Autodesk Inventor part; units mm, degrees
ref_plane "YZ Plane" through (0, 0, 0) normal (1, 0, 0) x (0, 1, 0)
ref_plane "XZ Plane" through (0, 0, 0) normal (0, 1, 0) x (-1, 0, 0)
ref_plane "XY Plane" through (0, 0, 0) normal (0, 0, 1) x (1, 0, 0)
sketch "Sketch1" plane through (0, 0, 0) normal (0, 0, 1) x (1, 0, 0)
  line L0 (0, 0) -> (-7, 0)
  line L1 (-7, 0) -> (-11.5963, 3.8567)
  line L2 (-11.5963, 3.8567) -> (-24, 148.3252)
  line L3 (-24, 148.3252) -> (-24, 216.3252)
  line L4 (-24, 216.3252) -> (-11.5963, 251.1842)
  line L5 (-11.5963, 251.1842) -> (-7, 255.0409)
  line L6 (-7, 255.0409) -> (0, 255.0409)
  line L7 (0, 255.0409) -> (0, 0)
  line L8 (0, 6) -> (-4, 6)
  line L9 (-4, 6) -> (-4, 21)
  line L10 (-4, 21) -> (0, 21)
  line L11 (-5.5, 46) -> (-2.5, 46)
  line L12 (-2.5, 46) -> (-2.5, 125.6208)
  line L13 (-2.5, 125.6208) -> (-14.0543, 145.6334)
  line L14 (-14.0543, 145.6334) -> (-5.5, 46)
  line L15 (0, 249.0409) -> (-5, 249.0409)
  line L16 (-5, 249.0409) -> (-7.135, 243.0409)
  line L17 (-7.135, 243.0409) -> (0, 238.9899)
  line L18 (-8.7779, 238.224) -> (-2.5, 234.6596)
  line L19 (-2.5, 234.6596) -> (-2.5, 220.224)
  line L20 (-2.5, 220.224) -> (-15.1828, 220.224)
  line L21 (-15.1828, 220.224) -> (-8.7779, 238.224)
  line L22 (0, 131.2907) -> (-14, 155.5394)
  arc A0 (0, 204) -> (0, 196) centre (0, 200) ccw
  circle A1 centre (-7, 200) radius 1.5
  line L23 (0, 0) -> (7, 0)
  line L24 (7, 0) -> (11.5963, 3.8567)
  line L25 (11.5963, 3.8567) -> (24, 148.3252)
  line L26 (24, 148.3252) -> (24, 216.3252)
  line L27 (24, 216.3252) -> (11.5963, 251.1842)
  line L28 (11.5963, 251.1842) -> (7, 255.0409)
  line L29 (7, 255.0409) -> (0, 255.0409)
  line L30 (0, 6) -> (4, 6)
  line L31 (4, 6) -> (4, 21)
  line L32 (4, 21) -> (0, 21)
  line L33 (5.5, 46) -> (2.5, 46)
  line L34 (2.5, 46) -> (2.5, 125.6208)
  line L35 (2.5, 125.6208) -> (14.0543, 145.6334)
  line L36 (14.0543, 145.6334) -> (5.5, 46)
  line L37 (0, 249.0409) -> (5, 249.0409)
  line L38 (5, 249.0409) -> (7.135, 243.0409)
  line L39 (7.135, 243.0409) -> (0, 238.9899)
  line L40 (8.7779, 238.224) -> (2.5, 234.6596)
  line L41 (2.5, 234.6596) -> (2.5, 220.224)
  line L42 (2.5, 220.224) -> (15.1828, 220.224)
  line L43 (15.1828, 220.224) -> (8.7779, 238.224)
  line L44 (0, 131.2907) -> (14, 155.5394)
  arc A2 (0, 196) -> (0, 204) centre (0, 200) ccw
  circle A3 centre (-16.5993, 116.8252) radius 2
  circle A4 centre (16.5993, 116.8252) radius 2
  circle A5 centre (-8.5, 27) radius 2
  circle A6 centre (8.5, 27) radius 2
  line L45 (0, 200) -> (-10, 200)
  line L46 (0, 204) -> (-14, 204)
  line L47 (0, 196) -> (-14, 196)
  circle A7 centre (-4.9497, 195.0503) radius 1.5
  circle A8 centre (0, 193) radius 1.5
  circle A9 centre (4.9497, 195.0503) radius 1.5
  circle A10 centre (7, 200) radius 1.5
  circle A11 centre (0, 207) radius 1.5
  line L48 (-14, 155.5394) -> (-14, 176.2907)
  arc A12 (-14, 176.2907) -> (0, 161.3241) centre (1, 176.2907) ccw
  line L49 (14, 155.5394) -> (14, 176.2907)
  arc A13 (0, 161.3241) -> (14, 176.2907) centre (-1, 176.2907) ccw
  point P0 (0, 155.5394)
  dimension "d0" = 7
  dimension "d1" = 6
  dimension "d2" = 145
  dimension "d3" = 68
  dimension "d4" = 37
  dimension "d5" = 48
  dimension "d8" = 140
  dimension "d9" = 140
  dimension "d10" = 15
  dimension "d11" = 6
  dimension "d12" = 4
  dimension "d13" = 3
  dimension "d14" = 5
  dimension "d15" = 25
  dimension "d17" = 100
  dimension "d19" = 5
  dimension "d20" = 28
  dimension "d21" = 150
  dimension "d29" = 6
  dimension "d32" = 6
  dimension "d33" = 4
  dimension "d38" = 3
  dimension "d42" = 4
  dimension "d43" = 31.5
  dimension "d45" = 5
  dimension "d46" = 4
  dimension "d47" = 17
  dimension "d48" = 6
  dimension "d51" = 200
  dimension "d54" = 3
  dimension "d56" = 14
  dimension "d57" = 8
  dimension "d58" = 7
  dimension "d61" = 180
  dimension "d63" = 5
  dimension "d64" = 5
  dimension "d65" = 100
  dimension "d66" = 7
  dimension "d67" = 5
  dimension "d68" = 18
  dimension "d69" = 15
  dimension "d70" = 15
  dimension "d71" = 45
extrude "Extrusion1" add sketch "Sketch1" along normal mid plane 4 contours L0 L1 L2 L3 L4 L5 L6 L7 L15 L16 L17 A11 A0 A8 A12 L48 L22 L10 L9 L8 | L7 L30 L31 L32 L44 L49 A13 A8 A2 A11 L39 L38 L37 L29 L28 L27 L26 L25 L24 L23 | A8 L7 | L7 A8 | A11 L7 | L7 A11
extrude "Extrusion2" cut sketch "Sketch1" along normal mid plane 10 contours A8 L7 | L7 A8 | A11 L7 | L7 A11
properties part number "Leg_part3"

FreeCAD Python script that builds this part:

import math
import FreeCAD as App
import Part
import Sketcher

V = App.Vector
Q = App.Units.Quantity

doc = App.newDocument("Part")
body = doc.addObject("PartDesign::Body", "Body")

sketch1 = body.newObject("Sketcher::SketchObject", "Sketch")
sketch1.AttachmentSupport = (doc.getObject("XY_Plane"), [""])
sketch1.MapMode = "FlatFace"
sketch1.addGeometry([
    Part.LineSegment(V(-7, 0, 0), V(7, 0, 0)),
    Part.LineSegment(V(7, 0, 0), V(11.5963, 3.8567, 0)),
    Part.LineSegment(V(11.5963, 3.8567, 0), V(24, 148.3252, 0)),
    Part.LineSegment(V(24, 148.3252, 0), V(24, 216.3252, 0)),
    Part.LineSegment(V(24, 216.3252, 0), V(11.5963, 251.1842, 0)),
    Part.LineSegment(V(11.5963, 251.1842, 0), V(7, 255.0409, 0)),
    Part.LineSegment(V(7, 255.0409, 0), V(-7, 255.0409, 0)),
    Part.LineSegment(V(-7, 255.0409, 0), V(-11.5963, 251.1842, 0)),
    Part.LineSegment(V(-11.5963, 251.1842, 0), V(-24, 216.3252, 0)),
    Part.LineSegment(V(-24, 216.3252, 0), V(-24, 148.3252, 0)),
    Part.LineSegment(V(-24, 148.3252, 0), V(-11.5963, 3.8567, 0)),
    Part.LineSegment(V(-11.5963, 3.8567, 0), V(-7, 0, 0)),
    Part.LineSegment(V(-5, 249.0409, 0), V(5, 249.0409, 0)),
    Part.LineSegment(V(5, 249.0409, 0), V(7.135, 243.0409, 0)),
    Part.LineSegment(V(7.135, 243.0409, 0), V(0, 238.9899, 0)),
    Part.LineSegment(V(0, 238.9899, 0), V(-7.135, 243.0409, 0)),
    Part.LineSegment(V(-7.135, 243.0409, 0), V(-5, 249.0409, 0)),
    Part.ArcOfCircle(Part.Circle(V(0, 200, 0), V(0, 0, 1), 4), math.radians(-90), math.radians(180)),
    Part.ArcOfCircle(Part.Circle(V(0, 200, 0), V(0, 0, 1), 4), math.radians(180), math.radians(270)),
    Part.ArcOfCircle(Part.Circle(V(1, 176.2907, 0), V(0, 0, 1), 15), math.radians(180), math.radians(266.177439)),
    Part.ArcOfCircle(Part.Circle(V(-1, 176.2907, 0), V(0, 0, 1), 14.999971), math.radians(-86.177439), math.radians(0)),
    Part.LineSegment(V(14, 176.2907, 0), V(14, 155.5394, 0)),
    Part.LineSegment(V(14, 155.5394, 0), V(0, 131.2907, 0)),
    Part.LineSegment(V(0, 131.2907, 0), V(-14, 155.5394, 0)),
    Part.LineSegment(V(-14, 155.5394, 0), V(-14, 176.2907, 0)),
    Part.LineSegment(V(-4, 21, 0), V(4, 21, 0)),
    Part.LineSegment(V(4, 21, 0), V(4, 6, 0)),
    Part.LineSegment(V(4, 6, 0), V(-4, 6, 0)),
    Part.LineSegment(V(-4, 6, 0), V(-4, 21, 0)),
    Part.Circle(V(-8.5, 27, 0), V(0, 0, 1), 2),
    Part.Circle(V(-16.5993, 116.8252, 0), V(0, 0, 1), 2),
    Part.LineSegment(V(-2.5, 46, 0), V(-5.5, 46, 0)),
    Part.LineSegment(V(-5.5, 46, 0), V(-14.0543, 145.6334, 0)),
    Part.LineSegment(V(-14.0543, 145.6334, 0), V(-2.5, 125.6208, 0)),
    Part.LineSegment(V(-2.5, 125.6208, 0), V(-2.5, 46, 0)),
    Part.Circle(V(-7, 200, 0), V(0, 0, 1), 1.5),
    Part.Circle(V(-4.9497, 195.0503, 0), V(0, 0, 1), 1.5),
    Part.LineSegment(V(-15.1828, 220.224, 0), V(-8.7779, 238.224, 0)),
    Part.LineSegment(V(-8.7779, 238.224, 0), V(-2.5, 234.6596, 0)),
    Part.LineSegment(V(-2.5, 234.6596, 0), V(-2.5, 220.224, 0)),
    Part.LineSegment(V(-2.5, 220.224, 0), V(-15.1828, 220.224, 0)),
    Part.Circle(V(16.5993, 116.8252, 0), V(0, 0, 1), 2),
    Part.Circle(V(4.9497, 195.0503, 0), V(0, 0, 1), 1.5),
    Part.Circle(V(7, 200, 0), V(0, 0, 1), 1.5),
    Part.LineSegment(V(2.5, 234.6596, 0), V(8.7779, 238.224, 0)),
    Part.LineSegment(V(8.7779, 238.224, 0), V(15.1828, 220.224, 0)),
    Part.LineSegment(V(15.1828, 220.224, 0), V(2.5, 220.224, 0)),
    Part.LineSegment(V(2.5, 220.224, 0), V(2.5, 234.6596, 0)),
    Part.Circle(V(8.5, 27, 0), V(0, 0, 1), 2),
    Part.LineSegment(V(14.0543, 145.6334, 0), V(5.5, 46, 0)),
    Part.LineSegment(V(5.5, 46, 0), V(2.5, 46, 0)),
    Part.LineSegment(V(2.5, 46, 0), V(2.5, 125.6208, 0)),
    Part.LineSegment(V(2.5, 125.6208, 0), V(14.0543, 145.6334, 0)),
], False)
sketch1.addConstraint([
    Sketcher.Constraint("Coincident", 0, 2, 1, 1),
    Sketcher.Constraint("Coincident", 1, 2, 2, 1),
    Sketcher.Constraint("Coincident", 2, 2, 3, 1),
    Sketcher.Constraint("Coincident", 3, 2, 4, 1),
    Sketcher.Constraint("Coincident", 4, 2, 5, 1),
    Sketcher.Constraint("Coincident", 5, 2, 6, 1),
    Sketcher.Constraint("Coincident", 6, 2, 7, 1),
    Sketcher.Constraint("Coincident", 7, 2, 8, 1),
    Sketcher.Constraint("Coincident", 8, 2, 9, 1),
    Sketcher.Constraint("Coincident", 9, 2, 10, 1),
    Sketcher.Constraint("Coincident", 10, 2, 11, 1),
    Sketcher.Constraint("Coincident", 11, 2, 0, 1),
    Sketcher.Constraint("Coincident", 12, 2, 13, 1),
    Sketcher.Constraint("Coincident", 13, 2, 14, 1),
    Sketcher.Constraint("Coincident", 14, 2, 15, 1),
    Sketcher.Constraint("Coincident", 15, 2, 16, 1),
    Sketcher.Constraint("Coincident", 16, 2, 12, 1),
    Sketcher.Constraint("Tangent", 17, 1, 18, 2),
    Sketcher.Constraint("Coincident", 18, 1, 17, 2),
    Sketcher.Constraint("Coincident", 19, 2, 20, 1),
    Sketcher.Constraint("Tangent", 20, 2, 21, 1),
    Sketcher.Constraint("Coincident", 21, 2, 22, 1),
    Sketcher.Constraint("Coincident", 22, 2, 23, 1),
    Sketcher.Constraint("Coincident", 23, 2, 24, 1),
    Sketcher.Constraint("Tangent", 24, 2, 19, 1),
    Sketcher.Constraint("Coincident", 25, 2, 26, 1),
    Sketcher.Constraint("Coincident", 26, 2, 27, 1),
    Sketcher.Constraint("Coincident", 27, 2, 28, 1),
    Sketcher.Constraint("Coincident", 28, 2, 25, 1),
    Sketcher.Constraint("Coincident", 31, 2, 32, 1),
    Sketcher.Constraint("Coincident", 32, 2, 33, 1),
    Sketcher.Constraint("Coincident", 33, 2, 34, 1),
    Sketcher.Constraint("Coincident", 34, 2, 31, 1),
    Sketcher.Constraint("Coincident", 37, 2, 38, 1),
    Sketcher.Constraint("Coincident", 38, 2, 39, 1),
    Sketcher.Constraint("Coincident", 39, 2, 40, 1),
    Sketcher.Constraint("Coincident", 40, 2, 37, 1),
    Sketcher.Constraint("Coincident", 44, 2, 45, 1),
    Sketcher.Constraint("Coincident", 45, 2, 46, 1),
    Sketcher.Constraint("Coincident", 46, 2, 47, 1),
    Sketcher.Constraint("Coincident", 47, 2, 44, 1),
    Sketcher.Constraint("Coincident", 49, 2, 50, 1),
    Sketcher.Constraint("Coincident", 50, 2, 51, 1),
    Sketcher.Constraint("Coincident", 51, 2, 52, 1),
    Sketcher.Constraint("Coincident", 52, 2, 49, 1),
    Sketcher.Constraint("Horizontal", 0),
    Sketcher.Constraint("Vertical", 3),
    Sketcher.Constraint("Horizontal", 6),
    Sketcher.Constraint("Vertical", 9),
    Sketcher.Constraint("Horizontal", 12),
    Sketcher.Constraint("Vertical", 21),
    Sketcher.Constraint("Vertical", 24),
    Sketcher.Constraint("Horizontal", 25),
    Sketcher.Constraint("Vertical", 26),
    Sketcher.Constraint("Horizontal", 27),
    Sketcher.Constraint("Vertical", 28),
    Sketcher.Constraint("Horizontal", 31),
    Sketcher.Constraint("Vertical", 34),
    Sketcher.Constraint("Vertical", 39),
    Sketcher.Constraint("Horizontal", 40),
    Sketcher.Constraint("Horizontal", 46),
    Sketcher.Constraint("Vertical", 47),
    Sketcher.Constraint("Horizontal", 50),
    Sketcher.Constraint("Vertical", 51),
    Sketcher.Constraint("Equal", 19, 20),
    Sketcher.Constraint("Equal", 29, 30),
    Sketcher.Constraint("Equal", 35, 36),
    Sketcher.Constraint("Equal", 30, 41),
    Sketcher.Constraint("Equal", 36, 42),
    Sketcher.Constraint("Equal", 42, 43),
    Sketcher.Constraint("Equal", 41, 48),
    Sketcher.Constraint("Symmetric", 0, 2, 11, 2, -1, 1),
    Sketcher.Constraint("Symmetric", 19, 3, 20, 3, -2),
    Sketcher.Constraint("Symmetric", 30, 3, 41, 3, -2),
    Sketcher.Constraint("Symmetric", 36, 3, 42, 3, -2),
    Sketcher.Constraint("Symmetric", 35, 3, 43, 3, -2),
    Sketcher.Constraint("Symmetric", 29, 3, 48, 3, -2),
    Sketcher.Constraint("Symmetric", 4, 2, 7, 2, -2),
    Sketcher.Constraint("Symmetric", 3, 2, 8, 2, -2),
    Sketcher.Constraint("Symmetric", 1, 2, 10, 2, -2),
    Sketcher.Constraint("Symmetric", 13, 2, 15, 2, -2),
    Sketcher.Constraint("Symmetric", 37, 2, 44, 2, -2),
    Sketcher.Constraint("Symmetric", 40, 2, 45, 2, -2),
    Sketcher.Constraint("Symmetric", 38, 2, 47, 2, -2),
    Sketcher.Constraint("Symmetric", 31, 2, 49, 2, -2),
    Sketcher.Constraint("Symmetric", 33, 2, 51, 2, -2),
    Sketcher.Constraint("Symmetric", 32, 2, 52, 2, -2),
    Sketcher.Constraint("PointOnObject", 17, 3, -2),
    Sketcher.Constraint("PointOnObject", 14, 2, -2),
    Sketcher.Constraint("PointOnObject", 17, 1, -2),
    Sketcher.Constraint("PointOnObject", 22, 2, -2),
    Sketcher.Constraint("Parallel", 1, 7),
    Sketcher.Constraint("Parallel", 5, 11),
    Sketcher.Constraint("Parallel", 4, 13),
    Sketcher.Constraint("Parallel", 8, 16),
    Sketcher.Constraint("Parallel", 10, 32),
    Sketcher.Constraint("Parallel", 23, 33),
    Sketcher.Constraint("Parallel", 16, 37),
    Sketcher.Constraint("Parallel", 15, 38),
    Sketcher.Constraint("Parallel", 2, 49),
    Sketcher.Constraint("Parallel", 22, 52),
    Sketcher.Constraint("Horizontal", 18, 3, 35, 3),
    Sketcher.Constraint("Horizontal", 43, 3, 18, 1),
    Sketcher.Constraint("Vertical", 43, 3, 0, 2),
    Sketcher.Constraint("Vertical", 1, 2, 4, 2),
    Sketcher.Constraint("Vertical", 0, 2, 5, 2),
    Sketcher.Constraint("Vertical", 18, 1, 27, 2),
    Sketcher.Constraint("Vertical", 34, 2, 38, 2),
    Sketcher.Constraint("Diameter", 29, 4.0),
    Sketcher.Constraint("Diameter", 35, 3.0),
    Sketcher.Constraint("Radius", 17, 4.0),
    Sketcher.Constraint("Radius", 19, 15.0),
    Sketcher.Constraint("DistanceX", 0, 1, 0, 2, 14.0),
    Sketcher.Constraint("DistanceX", 25, 1, 25, 2, 8.0),
    Sketcher.Constraint("DistanceX", 31, 2, 31, 1, 3.0),
    Sketcher.Constraint("DistanceY", 3, 1, 3, 2, 68.0),
    Sketcher.Constraint("DistanceY", 26, 2, 26, 1, 15.0),
    Sketcher.Constraint("Angle", 5, Q("140.0004 deg")),
    Sketcher.Constraint("Distance", 1, 6.0),
    Sketcher.Constraint("Distance", 2, 145.0),
    Sketcher.Constraint("Distance", 4, 37.0),
    Sketcher.Constraint("Distance", 22, 28.0),
    Sketcher.Constraint("Distance", 32, 100.0),
    Sketcher.Constraint("DistanceY", -1, 1, 17, 3, 200.0),
    Sketcher.Constraint("DistanceX", -1, 1, 12, 2, 5.0),
    Sketcher.Constraint("DistanceX", -1, 1, 20, 2, 14.0),
    Sketcher.Constraint("DistanceY", -1, 1, 26, 2, 6.0),
    Sketcher.Constraint("DistanceX", 29, 3, 48, 3, 17.0),
    Sketcher.Constraint("DistanceX", 20, 3, 2, 2, 25.0),
    Sketcher.Constraint("DistanceY", 12, 2, 5, 2, 6.0),
    Sketcher.Constraint("DistanceY", 13, 2, 12, 2, 6.0),
    Sketcher.Constraint("DistanceY", 25, 2, 48, 3, 6.0),
    Sketcher.Constraint("DistanceX", 29, 3, 31, 2, 3.0),
    Sketcher.Constraint("DistanceY", 28, 2, 31, 2, 25.0),
    Sketcher.Constraint("DistanceY", 39, 2, 37, 2, 18.0),
    Sketcher.Constraint("DistanceY", 41, 3, 2, 2, 31.5),
    Sketcher.Constraint("DistanceY", -1, 1, 14, 2, 238.99),
    Sketcher.Constraint("DistanceY", 33, 2, 22, 2, 5.67),
    Sketcher.Constraint("DistanceX", 40, 2, 40, 1, 12.6828),
    Sketcher.Constraint("DistanceY", 21, 2, 21, 1, 20.7513),
    Sketcher.Constraint("DistanceY", -1, 1, 37, 2, 238.224),
    Sketcher.Constraint("DistanceX", 36, 3, 41, 3, 21.549),
    Sketcher.Constraint("DistanceY", 41, 3, 36, 3, 78.225),
    Sketcher.Constraint("DistanceX", 1, 2, 41, 3, 5.003),
])
pad1 = body.newObject("PartDesign::Pad", "Pad")
pad1.Profile = sketch1
pad1.Length = 4
pad1.Midplane = True

sketch2 = body.newObject("Sketcher::SketchObject", "Sketch001")
sketch2.AttachmentSupport = (doc.getObject("XY_Plane"), [""])
sketch2.MapMode = "FlatFace"
sketch2.addGeometry([
    Part.Circle(V(0, 193, 0), V(0, 0, 1), 1.5),
    Part.Circle(V(0, 207, 0), V(0, 0, 1), 1.5),
], False)
sketch2.addConstraint([
    Sketcher.Constraint("Equal", 0, 1),
    Sketcher.Constraint("PointOnObject", 0, 3, -2),
    Sketcher.Constraint("PointOnObject", 1, 3, -2),
    Sketcher.Constraint("Diameter", 0, 3.0),
    Sketcher.Constraint("DistanceY", 0, 3, 1, 3, 14.0),
    Sketcher.Constraint("DistanceY", -1, 1, 0, 3, 193.0),
])
pocket1 = body.newObject("PartDesign::Pocket", "Pocket")
pocket1.Profile = sketch2
pocket1.Length = 10
pocket1.Midplane = True

doc.recompute()
